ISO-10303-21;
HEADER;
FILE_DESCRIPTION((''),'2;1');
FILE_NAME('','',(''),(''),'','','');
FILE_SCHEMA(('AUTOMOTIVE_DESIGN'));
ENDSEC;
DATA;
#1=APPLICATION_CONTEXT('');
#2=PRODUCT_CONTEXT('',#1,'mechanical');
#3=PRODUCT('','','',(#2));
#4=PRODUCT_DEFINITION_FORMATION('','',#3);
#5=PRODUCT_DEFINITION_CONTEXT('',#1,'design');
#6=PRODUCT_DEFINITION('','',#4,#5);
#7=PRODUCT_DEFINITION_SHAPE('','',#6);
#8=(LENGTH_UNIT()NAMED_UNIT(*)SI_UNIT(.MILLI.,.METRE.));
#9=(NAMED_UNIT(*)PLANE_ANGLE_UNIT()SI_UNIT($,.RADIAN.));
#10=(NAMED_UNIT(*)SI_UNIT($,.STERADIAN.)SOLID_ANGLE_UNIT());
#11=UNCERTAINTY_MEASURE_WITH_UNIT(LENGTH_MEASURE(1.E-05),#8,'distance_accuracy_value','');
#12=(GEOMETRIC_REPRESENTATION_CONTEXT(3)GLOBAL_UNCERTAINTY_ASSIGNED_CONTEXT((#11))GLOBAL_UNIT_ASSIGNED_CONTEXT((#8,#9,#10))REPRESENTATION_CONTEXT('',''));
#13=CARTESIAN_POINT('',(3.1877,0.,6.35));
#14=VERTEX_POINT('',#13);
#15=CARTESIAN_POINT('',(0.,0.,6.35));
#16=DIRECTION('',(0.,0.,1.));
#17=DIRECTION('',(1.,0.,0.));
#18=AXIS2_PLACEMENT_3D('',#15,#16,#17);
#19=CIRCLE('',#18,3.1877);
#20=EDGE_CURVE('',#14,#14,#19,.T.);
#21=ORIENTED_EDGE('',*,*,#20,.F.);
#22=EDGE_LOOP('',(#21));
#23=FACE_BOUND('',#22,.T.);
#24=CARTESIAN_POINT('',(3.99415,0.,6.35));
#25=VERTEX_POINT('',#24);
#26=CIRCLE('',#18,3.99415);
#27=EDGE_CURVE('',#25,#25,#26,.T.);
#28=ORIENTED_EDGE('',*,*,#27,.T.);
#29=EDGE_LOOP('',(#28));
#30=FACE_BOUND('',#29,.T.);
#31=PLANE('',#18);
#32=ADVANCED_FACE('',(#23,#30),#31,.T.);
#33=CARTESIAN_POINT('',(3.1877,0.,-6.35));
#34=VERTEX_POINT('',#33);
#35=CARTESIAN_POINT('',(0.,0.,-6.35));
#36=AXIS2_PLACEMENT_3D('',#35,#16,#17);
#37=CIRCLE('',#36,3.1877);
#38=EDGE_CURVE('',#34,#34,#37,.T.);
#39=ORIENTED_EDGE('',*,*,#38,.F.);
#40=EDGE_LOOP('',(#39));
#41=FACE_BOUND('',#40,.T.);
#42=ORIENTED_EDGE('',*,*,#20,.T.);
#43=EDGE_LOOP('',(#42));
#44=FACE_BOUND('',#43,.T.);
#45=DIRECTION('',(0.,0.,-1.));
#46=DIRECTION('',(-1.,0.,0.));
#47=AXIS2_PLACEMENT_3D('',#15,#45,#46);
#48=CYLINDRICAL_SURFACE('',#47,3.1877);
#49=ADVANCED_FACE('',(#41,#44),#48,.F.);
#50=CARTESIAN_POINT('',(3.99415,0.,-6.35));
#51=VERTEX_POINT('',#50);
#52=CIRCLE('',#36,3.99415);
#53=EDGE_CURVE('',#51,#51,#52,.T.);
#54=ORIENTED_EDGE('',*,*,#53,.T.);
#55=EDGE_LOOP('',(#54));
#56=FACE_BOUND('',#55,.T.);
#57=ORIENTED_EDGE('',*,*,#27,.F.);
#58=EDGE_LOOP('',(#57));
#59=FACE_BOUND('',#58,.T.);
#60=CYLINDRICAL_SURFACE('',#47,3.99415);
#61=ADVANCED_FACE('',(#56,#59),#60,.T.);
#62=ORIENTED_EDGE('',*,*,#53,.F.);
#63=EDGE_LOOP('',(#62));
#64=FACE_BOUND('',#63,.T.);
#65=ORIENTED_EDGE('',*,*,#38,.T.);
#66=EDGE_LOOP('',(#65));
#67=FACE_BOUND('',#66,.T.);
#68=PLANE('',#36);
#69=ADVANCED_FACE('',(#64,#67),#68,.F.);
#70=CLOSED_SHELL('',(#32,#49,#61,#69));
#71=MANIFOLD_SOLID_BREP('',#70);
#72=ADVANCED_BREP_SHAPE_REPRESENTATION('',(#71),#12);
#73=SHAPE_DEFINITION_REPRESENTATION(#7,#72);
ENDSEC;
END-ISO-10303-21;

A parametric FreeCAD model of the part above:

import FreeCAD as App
import Part
import Sketcher

V = App.Vector
Q = App.Units.Quantity

doc = App.newDocument("Part")
body = doc.addObject("PartDesign::Body", "Body")

# Sketch on XY plane
sketch1 = doc.addObject("Sketcher::SketchObject", "Sketch")
body.addObject(sketch1)
sketch1.AttachmentSupport = (doc.XY_Plane, [""])
sketch1.MapMode = "FlatFace"
sketch1.addGeometry([
    Part.Circle(V(0, 0, 0), V(0, 0, 1), 3.99415),
    Part.Circle(V(0, 0, 0), V(0, 0, 1), 3.1877),
], False)
sketch1.addConstraint([
    Sketcher.Constraint("Coincident", 0, 3, -1, 1),
    Sketcher.Constraint("Coincident", 1, 3, -1, 1),
    Sketcher.Constraint("Diameter", 1, Q("0.251 in")),
    Sketcher.Constraint("Diameter", 0, Q("0.3145 in")),
])
pad1 = doc.addObject("PartDesign::Pad", "Pad")
body.addObject(pad1)
pad1.Profile = sketch1
pad1.Length = Q("0.5 in")
pad1.Midplane = True

doc.recompute()
